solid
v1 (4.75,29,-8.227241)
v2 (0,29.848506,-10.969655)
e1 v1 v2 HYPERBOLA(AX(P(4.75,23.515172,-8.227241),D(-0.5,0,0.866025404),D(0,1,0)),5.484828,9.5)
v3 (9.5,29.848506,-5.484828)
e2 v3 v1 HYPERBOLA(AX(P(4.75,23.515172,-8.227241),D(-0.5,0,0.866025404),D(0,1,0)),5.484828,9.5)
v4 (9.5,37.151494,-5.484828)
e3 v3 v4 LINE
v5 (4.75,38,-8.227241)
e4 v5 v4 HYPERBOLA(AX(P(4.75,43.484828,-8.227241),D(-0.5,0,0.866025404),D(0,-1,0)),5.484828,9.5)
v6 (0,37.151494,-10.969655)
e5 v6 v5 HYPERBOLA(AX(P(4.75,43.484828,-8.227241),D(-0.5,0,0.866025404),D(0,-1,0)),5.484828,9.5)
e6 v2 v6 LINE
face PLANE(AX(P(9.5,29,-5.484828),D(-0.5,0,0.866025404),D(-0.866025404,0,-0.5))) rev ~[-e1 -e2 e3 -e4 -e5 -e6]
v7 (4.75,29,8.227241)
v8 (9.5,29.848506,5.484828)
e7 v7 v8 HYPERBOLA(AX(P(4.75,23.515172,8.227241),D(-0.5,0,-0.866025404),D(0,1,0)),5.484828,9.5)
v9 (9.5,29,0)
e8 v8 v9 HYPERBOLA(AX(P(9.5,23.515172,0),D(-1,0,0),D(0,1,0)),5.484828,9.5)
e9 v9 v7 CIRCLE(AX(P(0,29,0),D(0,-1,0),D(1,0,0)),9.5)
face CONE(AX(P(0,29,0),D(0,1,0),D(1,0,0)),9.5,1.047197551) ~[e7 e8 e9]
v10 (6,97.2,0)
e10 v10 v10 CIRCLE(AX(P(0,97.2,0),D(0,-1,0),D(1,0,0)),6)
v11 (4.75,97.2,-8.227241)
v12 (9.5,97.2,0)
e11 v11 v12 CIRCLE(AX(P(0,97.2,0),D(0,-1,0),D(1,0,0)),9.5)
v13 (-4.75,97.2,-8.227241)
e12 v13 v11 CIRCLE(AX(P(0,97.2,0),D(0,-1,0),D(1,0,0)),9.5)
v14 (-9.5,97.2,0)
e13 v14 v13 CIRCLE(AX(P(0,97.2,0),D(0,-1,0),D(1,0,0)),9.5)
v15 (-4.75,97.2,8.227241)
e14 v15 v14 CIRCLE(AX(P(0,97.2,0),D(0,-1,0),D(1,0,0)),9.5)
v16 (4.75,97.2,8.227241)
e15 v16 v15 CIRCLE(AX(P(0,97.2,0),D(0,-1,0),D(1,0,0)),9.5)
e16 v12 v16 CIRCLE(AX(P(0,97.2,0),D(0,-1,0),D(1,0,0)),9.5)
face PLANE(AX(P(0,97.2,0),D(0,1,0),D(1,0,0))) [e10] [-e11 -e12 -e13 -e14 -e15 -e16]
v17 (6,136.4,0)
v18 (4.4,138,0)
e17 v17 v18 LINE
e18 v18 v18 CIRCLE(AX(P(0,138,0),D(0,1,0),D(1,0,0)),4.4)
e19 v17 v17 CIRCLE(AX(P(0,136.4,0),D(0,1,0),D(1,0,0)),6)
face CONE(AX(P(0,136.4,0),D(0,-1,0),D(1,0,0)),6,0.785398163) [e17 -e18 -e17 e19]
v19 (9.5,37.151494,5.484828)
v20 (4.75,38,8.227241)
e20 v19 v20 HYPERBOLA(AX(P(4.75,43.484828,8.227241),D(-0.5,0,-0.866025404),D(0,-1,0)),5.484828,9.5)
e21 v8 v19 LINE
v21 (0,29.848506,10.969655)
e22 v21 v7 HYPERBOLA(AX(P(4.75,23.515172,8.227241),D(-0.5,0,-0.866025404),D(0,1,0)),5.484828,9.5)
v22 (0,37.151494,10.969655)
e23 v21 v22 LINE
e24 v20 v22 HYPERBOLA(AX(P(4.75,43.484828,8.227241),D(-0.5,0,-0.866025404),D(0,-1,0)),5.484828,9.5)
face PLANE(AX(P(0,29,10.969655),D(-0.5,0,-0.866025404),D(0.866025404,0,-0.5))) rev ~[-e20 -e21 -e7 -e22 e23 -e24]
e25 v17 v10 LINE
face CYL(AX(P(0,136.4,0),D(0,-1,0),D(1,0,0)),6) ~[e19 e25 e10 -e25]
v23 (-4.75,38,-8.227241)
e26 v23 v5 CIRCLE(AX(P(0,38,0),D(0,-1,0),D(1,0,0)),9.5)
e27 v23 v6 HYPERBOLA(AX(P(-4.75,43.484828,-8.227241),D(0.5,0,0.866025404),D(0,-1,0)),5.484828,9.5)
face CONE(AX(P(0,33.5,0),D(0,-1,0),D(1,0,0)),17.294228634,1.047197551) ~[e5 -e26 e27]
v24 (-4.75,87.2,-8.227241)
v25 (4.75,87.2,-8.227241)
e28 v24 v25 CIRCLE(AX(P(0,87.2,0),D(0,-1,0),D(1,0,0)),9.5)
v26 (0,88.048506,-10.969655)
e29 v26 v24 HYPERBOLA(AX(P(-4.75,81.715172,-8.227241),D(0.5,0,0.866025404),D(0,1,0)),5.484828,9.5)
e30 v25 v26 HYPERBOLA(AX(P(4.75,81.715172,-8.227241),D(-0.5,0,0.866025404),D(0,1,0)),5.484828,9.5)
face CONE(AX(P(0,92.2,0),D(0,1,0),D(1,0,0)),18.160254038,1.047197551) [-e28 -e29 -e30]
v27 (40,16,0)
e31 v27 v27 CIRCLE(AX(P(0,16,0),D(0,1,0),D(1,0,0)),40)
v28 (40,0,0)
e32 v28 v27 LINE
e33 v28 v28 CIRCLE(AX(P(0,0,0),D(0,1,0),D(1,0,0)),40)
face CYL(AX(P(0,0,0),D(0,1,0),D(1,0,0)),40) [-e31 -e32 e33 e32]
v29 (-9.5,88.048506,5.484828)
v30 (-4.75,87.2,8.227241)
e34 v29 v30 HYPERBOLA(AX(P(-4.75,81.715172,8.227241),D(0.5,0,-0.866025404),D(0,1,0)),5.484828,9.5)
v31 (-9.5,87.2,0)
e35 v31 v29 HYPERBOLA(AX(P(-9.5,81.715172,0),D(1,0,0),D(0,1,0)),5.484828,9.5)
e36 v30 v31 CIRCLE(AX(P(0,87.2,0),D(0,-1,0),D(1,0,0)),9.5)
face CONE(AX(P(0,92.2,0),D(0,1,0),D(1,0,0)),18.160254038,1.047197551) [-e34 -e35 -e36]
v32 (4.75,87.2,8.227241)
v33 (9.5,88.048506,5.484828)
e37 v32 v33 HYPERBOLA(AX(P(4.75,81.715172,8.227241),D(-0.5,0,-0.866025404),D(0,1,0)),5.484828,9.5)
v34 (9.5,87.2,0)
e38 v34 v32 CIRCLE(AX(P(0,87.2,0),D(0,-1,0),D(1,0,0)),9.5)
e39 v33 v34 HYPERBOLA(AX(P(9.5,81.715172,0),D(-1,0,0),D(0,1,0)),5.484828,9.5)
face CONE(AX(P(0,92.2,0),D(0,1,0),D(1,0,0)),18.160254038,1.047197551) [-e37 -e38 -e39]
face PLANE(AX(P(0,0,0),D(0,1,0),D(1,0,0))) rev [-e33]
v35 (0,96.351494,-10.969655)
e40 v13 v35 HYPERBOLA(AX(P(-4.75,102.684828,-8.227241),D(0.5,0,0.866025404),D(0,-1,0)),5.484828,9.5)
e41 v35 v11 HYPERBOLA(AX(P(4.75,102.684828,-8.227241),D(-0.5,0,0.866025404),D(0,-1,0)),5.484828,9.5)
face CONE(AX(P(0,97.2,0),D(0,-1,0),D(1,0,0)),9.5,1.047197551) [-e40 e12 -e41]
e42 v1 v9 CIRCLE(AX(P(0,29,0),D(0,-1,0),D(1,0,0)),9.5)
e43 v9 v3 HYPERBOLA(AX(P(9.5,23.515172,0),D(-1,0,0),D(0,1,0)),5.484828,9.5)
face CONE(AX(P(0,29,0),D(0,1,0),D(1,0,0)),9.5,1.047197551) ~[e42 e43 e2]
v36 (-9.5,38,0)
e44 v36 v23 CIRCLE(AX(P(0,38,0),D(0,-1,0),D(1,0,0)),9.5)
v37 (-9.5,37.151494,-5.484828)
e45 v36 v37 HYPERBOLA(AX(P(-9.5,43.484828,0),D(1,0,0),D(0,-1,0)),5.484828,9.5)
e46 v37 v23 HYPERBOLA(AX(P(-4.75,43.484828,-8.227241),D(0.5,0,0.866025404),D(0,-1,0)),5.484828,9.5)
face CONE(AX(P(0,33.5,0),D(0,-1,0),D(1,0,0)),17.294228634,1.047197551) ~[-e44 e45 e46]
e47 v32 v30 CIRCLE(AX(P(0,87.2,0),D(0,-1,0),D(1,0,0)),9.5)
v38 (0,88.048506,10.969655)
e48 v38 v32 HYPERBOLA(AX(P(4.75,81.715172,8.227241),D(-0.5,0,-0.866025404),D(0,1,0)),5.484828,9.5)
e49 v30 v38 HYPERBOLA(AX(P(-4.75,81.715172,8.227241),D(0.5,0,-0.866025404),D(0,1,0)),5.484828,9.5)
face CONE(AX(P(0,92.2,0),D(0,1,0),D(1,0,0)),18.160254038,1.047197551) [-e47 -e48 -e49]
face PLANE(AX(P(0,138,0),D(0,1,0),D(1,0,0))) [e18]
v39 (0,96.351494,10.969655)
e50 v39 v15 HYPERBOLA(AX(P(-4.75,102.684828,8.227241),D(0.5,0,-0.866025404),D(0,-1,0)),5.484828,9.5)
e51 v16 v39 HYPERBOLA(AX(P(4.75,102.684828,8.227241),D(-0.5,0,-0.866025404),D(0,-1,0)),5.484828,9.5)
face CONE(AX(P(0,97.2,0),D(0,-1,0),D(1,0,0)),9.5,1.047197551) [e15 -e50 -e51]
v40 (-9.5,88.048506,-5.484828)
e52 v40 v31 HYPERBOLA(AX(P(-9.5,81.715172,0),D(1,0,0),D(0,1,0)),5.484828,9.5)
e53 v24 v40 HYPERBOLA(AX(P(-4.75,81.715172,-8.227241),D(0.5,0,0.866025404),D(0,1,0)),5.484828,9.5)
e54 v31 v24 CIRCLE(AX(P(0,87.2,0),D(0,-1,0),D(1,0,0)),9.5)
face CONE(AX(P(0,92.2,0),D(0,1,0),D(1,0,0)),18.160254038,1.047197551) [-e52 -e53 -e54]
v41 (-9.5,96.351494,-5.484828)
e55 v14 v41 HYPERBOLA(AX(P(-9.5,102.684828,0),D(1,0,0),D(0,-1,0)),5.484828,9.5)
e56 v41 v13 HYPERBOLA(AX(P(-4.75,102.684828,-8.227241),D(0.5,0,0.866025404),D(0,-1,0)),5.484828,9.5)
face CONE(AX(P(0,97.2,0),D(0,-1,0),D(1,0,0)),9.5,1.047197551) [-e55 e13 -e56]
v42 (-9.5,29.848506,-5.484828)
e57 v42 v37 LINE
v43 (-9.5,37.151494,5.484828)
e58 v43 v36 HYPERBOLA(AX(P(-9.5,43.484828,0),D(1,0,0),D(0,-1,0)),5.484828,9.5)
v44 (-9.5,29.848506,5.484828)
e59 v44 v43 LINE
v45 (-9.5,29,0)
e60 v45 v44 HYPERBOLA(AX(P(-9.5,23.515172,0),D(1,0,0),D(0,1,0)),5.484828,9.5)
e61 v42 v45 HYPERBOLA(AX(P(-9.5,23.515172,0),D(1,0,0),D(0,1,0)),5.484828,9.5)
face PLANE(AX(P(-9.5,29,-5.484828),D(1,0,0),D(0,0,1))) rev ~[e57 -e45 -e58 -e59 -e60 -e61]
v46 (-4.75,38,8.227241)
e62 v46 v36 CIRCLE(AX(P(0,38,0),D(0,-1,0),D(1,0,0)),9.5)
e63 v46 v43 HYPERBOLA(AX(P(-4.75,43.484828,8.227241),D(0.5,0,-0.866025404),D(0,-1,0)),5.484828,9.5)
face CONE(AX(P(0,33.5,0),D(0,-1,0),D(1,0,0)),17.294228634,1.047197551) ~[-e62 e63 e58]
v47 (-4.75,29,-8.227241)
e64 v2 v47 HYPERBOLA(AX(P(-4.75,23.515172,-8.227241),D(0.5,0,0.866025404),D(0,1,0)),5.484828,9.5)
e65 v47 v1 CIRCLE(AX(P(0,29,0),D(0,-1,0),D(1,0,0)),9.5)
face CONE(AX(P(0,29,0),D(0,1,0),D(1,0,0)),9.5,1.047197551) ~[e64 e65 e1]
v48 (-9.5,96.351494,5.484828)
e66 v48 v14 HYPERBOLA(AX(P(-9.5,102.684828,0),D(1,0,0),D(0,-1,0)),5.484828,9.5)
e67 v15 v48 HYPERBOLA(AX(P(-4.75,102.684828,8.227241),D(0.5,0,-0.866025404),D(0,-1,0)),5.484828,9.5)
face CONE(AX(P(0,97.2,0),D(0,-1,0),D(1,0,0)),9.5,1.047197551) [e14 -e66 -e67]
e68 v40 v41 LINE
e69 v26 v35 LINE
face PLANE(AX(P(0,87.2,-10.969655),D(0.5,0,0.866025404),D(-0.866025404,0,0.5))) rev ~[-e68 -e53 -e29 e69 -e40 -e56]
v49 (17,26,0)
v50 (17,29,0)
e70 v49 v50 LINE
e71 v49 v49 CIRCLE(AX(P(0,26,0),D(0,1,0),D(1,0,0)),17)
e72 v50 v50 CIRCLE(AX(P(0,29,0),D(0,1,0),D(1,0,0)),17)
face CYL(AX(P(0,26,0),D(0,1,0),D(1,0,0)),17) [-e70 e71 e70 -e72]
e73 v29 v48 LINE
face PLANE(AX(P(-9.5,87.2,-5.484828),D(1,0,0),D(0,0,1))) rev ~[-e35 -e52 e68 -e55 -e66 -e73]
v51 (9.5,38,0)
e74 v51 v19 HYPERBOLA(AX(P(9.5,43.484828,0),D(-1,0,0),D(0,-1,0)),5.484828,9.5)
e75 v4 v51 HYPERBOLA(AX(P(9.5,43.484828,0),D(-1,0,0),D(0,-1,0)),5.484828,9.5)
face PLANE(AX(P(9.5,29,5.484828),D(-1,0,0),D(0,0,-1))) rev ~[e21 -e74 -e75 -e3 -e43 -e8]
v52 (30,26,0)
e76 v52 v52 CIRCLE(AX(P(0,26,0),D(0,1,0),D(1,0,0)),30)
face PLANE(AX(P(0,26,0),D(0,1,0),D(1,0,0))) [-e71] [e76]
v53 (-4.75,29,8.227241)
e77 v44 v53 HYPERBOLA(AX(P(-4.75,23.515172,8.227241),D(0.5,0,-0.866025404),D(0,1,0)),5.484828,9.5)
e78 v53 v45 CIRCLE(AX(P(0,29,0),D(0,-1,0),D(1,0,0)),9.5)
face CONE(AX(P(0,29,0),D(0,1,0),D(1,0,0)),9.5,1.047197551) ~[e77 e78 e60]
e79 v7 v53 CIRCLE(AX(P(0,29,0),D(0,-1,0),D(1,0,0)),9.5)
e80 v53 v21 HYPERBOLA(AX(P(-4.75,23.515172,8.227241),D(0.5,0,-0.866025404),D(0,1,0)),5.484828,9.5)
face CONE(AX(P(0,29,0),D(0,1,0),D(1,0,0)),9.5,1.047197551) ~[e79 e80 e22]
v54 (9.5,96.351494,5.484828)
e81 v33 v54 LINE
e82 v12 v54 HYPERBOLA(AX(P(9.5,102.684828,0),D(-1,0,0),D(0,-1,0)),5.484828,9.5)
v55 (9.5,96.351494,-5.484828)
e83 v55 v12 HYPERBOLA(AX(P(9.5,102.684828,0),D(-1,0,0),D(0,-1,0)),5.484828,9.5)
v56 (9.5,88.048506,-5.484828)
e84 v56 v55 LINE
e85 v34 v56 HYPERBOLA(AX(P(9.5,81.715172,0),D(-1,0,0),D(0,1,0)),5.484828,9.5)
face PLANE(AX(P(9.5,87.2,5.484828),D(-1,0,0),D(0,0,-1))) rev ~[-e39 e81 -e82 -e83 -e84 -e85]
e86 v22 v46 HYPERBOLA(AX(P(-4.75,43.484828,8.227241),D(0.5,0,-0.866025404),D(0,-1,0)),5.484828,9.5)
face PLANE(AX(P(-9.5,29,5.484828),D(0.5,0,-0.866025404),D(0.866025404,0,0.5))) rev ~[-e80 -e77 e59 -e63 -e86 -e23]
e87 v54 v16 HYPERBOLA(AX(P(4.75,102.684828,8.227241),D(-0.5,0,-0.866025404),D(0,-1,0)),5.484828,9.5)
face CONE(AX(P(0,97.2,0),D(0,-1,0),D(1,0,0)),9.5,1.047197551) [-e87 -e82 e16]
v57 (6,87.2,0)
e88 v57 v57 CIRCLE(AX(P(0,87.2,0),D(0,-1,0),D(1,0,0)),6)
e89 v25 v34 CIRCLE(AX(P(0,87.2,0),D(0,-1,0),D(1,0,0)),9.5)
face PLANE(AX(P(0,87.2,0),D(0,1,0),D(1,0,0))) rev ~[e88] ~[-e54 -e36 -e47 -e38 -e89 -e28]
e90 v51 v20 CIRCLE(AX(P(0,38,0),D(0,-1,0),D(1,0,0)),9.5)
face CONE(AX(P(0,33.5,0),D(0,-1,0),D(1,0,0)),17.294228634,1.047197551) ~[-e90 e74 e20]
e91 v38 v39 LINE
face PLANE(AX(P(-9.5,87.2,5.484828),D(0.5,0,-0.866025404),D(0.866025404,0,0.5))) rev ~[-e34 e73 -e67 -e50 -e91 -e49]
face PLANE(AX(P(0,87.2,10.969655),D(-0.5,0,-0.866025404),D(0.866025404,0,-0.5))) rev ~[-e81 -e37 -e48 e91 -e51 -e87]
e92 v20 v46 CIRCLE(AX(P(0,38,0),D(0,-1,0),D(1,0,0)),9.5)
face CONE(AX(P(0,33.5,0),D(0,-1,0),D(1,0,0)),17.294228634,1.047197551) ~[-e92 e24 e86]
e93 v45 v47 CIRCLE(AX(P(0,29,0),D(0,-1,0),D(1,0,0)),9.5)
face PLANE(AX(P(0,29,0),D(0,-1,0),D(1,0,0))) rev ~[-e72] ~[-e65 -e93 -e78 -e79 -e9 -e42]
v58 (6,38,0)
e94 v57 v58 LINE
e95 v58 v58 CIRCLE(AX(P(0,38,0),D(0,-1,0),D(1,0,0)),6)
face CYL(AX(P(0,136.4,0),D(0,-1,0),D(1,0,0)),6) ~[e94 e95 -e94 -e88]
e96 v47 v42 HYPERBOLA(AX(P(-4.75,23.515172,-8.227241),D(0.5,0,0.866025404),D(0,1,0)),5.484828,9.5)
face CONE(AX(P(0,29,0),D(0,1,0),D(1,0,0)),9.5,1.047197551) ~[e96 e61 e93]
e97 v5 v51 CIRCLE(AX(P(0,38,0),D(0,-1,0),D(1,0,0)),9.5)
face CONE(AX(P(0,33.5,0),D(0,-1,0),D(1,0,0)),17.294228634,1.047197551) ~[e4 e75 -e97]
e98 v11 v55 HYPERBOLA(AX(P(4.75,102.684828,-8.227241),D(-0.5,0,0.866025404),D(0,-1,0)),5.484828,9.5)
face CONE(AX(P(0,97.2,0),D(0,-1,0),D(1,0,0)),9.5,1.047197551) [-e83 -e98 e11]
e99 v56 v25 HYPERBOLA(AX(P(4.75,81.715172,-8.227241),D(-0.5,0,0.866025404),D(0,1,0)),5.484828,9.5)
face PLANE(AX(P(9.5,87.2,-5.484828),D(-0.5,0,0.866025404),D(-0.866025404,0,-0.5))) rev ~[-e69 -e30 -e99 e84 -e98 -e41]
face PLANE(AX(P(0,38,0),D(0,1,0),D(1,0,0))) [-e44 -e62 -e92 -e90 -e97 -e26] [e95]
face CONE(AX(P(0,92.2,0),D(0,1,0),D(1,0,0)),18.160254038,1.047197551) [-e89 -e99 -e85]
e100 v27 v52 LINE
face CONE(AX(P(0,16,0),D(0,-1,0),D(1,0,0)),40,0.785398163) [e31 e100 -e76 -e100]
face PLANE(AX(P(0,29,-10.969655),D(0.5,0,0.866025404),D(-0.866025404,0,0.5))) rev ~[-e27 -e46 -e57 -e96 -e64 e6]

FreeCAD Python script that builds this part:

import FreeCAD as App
import Part
import Sketcher
from FreeCAD import Vector
Q = App.Units.Quantity


def add_polygon(sketch, points):
    """Adds a closed chain of lines whose ends are joined by coincident constraints."""
    first, n = sketch.GeometryCount, len(points)
    for a, b in zip(points, points[1:] + points[:1]):
        sketch.addGeometry(Part.LineSegment(App.Vector(*a, 0), App.Vector(*b, 0)), False)
    for i in range(n):
        sketch.addConstraint(Sketcher.Constraint("Coincident", first + i, 2, first + (i + 1) % n, 1))

doc = App.newDocument("Part")
body = doc.addObject("PartDesign::Body", "Body")

# Sketch on XY plane
sketch1 = body.newObject("Sketcher::SketchObject", "Sketch")
sketch1.AttachmentSupport = (doc.getObject("XY_Plane"), [""])
sketch1.MapMode = "FlatFace"
add_polygon(sketch1, [(-40, 0), (0, 0), (0, 138), (-4.4, 138), (-6, 136.4), (-6, 29), (-17, 29), (-17, 26), (-30, 26), (-40, 16)])  # lines 0-9
sketch1.addConstraint([
    Sketcher.Constraint("Horizontal", 0),
    Sketcher.Constraint("Vertical", 1),
    Sketcher.Constraint("Horizontal", 2),
    Sketcher.Constraint("Vertical", 4),
    Sketcher.Constraint("Horizontal", 5),
    Sketcher.Constraint("Vertical", 6),
    Sketcher.Constraint("Horizontal", 7),
    Sketcher.Constraint("Vertical", 9),
    Sketcher.Constraint("Coincident", 0, 2, -1, 1),
    Sketcher.Constraint("Parallel", 3, 8),
    Sketcher.Constraint("DistanceX", 0, 1, 0, 2, 40.0),
    Sketcher.Constraint("DistanceX", 5, 2, 5, 1, 11.0),
    Sketcher.Constraint("DistanceX", 7, 2, 7, 1, 13.0),
    Sketcher.Constraint("DistanceY", 1, 1, 1, 2, 138.0),
    Sketcher.Constraint("DistanceY", 6, 2, 6, 1, 3.0),
    Sketcher.Constraint("DistanceY", 9, 2, 9, 1, 16.0),
    Sketcher.Constraint("Angle", 3, Q("-135 deg")),
    Sketcher.Constraint("DistanceX", 2, 2, 2, 1, 4.4),
    Sketcher.Constraint("DistanceX", 3, 2, -1, 1, 6.0),
])
revolution = body.newObject("PartDesign::Revolution", "Revolution")
revolution.Profile = sketch1
revolution.ReferenceAxis = (sketch1, ["V_Axis"])
revolution.Angle = 360

# Sketch on XZ plane
sketch2 = body.newObject("Sketcher::SketchObject", "Sketch001")
sketch2.AttachmentSupport = (doc.getObject("XZ_Plane"), [""])
sketch2.MapMode = "FlatFace"
sketch2.AttachmentOffset = App.Placement(Vector(0, 0, -29), App.Rotation())
add_polygon(sketch2, [(0, -11), (-10, -5), (-10, 5), (0, 11), (10, 5), (10, -5)])  # lines 0-5
sketch2.addConstraint([
    Sketcher.Constraint("Vertical", 1),
    Sketcher.Constraint("Vertical", 4),
    Sketcher.Constraint("Symmetric", 0, 2, 3, 2, -1, 1),
    Sketcher.Constraint("Symmetric", 2, 2, 5, 2, -1, 1),
    Sketcher.Constraint("PointOnObject", 2, 2, -2),
    Sketcher.Constraint("Parallel", 2, 5),
    Sketcher.Constraint("Horizontal", 1, 2, 3, 2),
    Sketcher.Constraint("Angle", 0, Q("150 deg")),
    Sketcher.Constraint("DistanceX", 1, 2, 3, 2, 19.0),
    Sketcher.Constraint("DistanceY", 1, 1, 1, 2, 10.969655),
])
pad1 = body.newObject("PartDesign::Pad", "Pad")
pad1.Profile = sketch2
pad1.Length = 9
pad1.Reversed = True

# Sketch on XZ plane
sketch3 = body.newObject("Sketcher::SketchObject", "Sketch002")
sketch3.AttachmentSupport = (doc.getObject("XZ_Plane"), [""])
sketch3.MapMode = "FlatFace"
sketch3.AttachmentOffset = App.Placement(Vector(0, 0, -87.2), App.Rotation())
add_polygon(sketch3, [(10, -5), (0, -11), (-10, -5), (-10, 5), (0, 11), (10, 5)])  # lines 0-5
sketch3.addConstraint([
    Sketcher.Constraint("Vertical", 2),
    Sketcher.Constraint("Vertical", 5),
    Sketcher.Constraint("Symmetric", 0, 2, 3, 2, -1, 1),
    Sketcher.Constraint("Symmetric", 1, 2, 4, 2, -1, 1),
    Sketcher.Constraint("PointOnObject", 0, 2, -2),
    Sketcher.Constraint("Parallel", 0, 3),
    Sketcher.Constraint("Horizontal", 2, 2, 4, 2),
    Sketcher.Constraint("Angle", 0, Q("-150 deg")),
    Sketcher.Constraint("DistanceX", 2, 2, 4, 2, 19.0),
    Sketcher.Constraint("DistanceY", 2, 1, 2, 2, 10.969655),
])
pad2 = body.newObject("PartDesign::Pad", "Pad001")
pad2.Profile = sketch3
pad2.Length = 10
pad2.Reversed = True

# Sketch on XY plane
sketch4 = body.newObject("Sketcher::SketchObject", "Sketch003")
sketch4.AttachmentSupport = (doc.getObject("XY_Plane"), [""])
sketch4.MapMode = "FlatFace"
add_polygon(sketch4, [(-9.5, 97.2), (-18.2, 97.2), (-18.2, 92.2)])  # lines 0-2
add_polygon(sketch4, [(-18.2, 92.2), (-18.2, 87.2), (-9.5, 87.2)])  # lines 3-5
add_polygon(sketch4, [(-17.3, 38), (-17.3, 33.5), (-9.5, 38)])  # lines 6-8
add_polygon(sketch4, [(-17.3, 33.5), (-17.3, 29), (-9.5, 29)])  # lines 9-11
sketch4.addConstraint([
    Sketcher.Constraint("Horizontal", 0),
    Sketcher.Constraint("Vertical", 1),
    Sketcher.Constraint("Vertical", 3),
    Sketcher.Constraint("Horizontal", 4),
    Sketcher.Constraint("Vertical", 6),
    Sketcher.Constraint("Horizontal", 8),
    Sketcher.Constraint("Vertical", 9),
    Sketcher.Constraint("Horizontal", 10),
    Sketcher.Constraint("Coincident", 5, 2, 1, 2),
    Sketcher.Constraint("Coincident", 11, 2, 6, 2),
    Sketcher.Constraint("Parallel", 2, 7),
    Sketcher.Constraint("Parallel", 5, 11),
    Sketcher.Constraint("Vertical", 2, 2, 4, 2),
    Sketcher.Constraint("Vertical", 4, 2, 7, 2),
    Sketcher.Constraint("Vertical", 7, 2, 10, 2),
    Sketcher.Constraint("Equal", 1, 3),
    Sketcher.Constraint("DistanceY", 1, 2, 1, 1, 5.0),
    Sketcher.Constraint("Angle", 2, Q("30 deg")),
    Sketcher.Constraint("Distance", 7, 9.0),
    Sketcher.Constraint("DistanceY", -1, 1, 7, 2, 38.0),
    Sketcher.Constraint("DistanceY", -1, 1, 0, 2, 97.2),
    Sketcher.Constraint("DistanceX", 2, 2, -1, 1, 9.5),
])
groove = body.newObject("PartDesign::Groove", "Groove")
groove.Profile = sketch4
groove.ReferenceAxis = (sketch4, ["V_Axis"])
groove.Angle = 360

doc.recompute()
